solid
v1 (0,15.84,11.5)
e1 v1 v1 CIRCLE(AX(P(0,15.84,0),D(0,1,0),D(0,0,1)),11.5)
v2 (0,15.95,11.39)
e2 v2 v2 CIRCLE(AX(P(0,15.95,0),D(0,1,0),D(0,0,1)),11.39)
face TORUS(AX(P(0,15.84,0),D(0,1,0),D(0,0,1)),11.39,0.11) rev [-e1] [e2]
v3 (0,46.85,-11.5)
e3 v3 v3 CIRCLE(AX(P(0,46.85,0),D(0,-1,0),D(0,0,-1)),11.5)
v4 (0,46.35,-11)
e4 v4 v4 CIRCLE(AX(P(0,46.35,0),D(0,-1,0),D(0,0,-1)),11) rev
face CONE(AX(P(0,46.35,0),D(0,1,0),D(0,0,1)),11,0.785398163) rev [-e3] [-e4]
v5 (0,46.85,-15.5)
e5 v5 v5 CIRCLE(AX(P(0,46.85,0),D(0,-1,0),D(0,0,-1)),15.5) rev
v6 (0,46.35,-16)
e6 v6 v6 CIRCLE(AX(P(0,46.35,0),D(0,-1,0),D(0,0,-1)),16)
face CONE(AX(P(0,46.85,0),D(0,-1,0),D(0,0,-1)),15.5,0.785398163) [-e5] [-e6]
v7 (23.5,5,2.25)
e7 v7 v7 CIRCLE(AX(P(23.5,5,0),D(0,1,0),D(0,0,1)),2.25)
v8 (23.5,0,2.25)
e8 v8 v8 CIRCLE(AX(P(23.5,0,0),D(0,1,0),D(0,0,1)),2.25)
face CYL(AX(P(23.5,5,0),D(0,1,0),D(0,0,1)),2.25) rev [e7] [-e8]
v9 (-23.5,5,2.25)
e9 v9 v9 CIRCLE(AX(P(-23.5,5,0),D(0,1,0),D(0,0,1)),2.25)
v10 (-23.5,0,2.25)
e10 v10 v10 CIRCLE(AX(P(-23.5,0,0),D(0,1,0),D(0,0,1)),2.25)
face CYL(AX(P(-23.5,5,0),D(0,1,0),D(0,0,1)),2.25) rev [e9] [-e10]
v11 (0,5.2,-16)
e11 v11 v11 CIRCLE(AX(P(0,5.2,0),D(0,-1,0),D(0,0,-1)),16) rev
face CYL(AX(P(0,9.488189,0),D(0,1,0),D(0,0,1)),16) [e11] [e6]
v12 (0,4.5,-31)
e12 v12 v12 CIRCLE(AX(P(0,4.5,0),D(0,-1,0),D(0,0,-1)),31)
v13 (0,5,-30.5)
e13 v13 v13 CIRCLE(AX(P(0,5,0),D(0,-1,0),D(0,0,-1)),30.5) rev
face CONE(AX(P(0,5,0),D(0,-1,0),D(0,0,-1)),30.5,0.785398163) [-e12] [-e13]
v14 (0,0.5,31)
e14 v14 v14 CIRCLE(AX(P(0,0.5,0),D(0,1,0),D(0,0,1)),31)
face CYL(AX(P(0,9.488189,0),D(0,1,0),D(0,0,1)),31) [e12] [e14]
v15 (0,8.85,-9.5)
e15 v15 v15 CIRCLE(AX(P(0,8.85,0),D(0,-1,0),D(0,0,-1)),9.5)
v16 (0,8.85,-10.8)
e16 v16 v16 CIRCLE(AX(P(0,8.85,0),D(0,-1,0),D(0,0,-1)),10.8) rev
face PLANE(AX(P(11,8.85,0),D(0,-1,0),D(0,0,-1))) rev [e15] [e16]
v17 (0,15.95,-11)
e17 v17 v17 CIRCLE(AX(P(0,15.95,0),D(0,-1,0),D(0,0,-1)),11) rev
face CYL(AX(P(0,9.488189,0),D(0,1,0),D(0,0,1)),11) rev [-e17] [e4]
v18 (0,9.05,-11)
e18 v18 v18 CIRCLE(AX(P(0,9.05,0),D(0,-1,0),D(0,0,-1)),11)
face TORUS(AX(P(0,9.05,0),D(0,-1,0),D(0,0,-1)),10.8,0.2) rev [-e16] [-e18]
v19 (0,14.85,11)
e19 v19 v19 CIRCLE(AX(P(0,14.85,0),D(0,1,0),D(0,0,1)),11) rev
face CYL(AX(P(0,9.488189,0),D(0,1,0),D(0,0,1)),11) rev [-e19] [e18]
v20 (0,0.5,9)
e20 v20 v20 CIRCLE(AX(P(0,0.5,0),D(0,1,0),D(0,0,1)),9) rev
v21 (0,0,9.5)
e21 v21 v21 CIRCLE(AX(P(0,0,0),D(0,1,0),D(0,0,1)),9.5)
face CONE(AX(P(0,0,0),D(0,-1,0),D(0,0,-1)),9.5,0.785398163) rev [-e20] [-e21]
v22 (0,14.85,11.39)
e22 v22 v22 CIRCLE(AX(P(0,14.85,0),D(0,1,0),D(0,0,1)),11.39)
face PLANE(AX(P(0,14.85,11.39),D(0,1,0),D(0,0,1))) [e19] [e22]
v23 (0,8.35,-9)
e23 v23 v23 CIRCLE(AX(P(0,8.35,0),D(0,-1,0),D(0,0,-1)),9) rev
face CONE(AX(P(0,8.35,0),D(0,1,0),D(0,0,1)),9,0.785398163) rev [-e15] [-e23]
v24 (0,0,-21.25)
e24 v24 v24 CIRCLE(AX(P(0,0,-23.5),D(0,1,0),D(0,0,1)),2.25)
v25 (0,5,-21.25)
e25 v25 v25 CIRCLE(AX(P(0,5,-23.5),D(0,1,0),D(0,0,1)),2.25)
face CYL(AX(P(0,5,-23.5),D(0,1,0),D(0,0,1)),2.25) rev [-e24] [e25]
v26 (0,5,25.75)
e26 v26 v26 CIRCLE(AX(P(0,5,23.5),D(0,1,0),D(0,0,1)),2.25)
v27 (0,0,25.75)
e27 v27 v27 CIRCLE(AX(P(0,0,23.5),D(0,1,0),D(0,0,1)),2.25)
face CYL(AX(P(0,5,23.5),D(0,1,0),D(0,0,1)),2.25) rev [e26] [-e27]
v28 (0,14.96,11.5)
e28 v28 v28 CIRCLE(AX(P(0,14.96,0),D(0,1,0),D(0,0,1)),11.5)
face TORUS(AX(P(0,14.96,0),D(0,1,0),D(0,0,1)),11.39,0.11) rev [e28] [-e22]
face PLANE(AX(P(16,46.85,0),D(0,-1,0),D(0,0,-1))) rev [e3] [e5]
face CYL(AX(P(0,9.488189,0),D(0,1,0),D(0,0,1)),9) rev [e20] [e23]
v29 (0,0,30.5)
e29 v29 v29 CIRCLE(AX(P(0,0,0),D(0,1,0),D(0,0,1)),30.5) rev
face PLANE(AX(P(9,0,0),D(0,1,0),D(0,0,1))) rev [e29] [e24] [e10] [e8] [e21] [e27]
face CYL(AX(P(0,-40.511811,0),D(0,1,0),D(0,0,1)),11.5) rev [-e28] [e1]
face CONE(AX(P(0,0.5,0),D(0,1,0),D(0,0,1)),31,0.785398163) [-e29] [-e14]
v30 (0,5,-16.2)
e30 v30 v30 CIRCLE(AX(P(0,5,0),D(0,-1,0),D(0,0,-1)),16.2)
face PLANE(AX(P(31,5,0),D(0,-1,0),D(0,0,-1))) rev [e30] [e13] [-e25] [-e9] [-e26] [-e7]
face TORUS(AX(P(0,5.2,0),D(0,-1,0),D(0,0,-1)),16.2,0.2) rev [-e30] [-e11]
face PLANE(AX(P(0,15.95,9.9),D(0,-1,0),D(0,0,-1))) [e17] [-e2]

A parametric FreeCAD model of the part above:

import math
import FreeCAD as App
import Part
import Sketcher
Q = App.Units.Quantity


def edges_at(feature, points):
    """Names of the edges that pass closest to the given points."""
    edges = feature.Shape.Edges
    near = lambda p: min(range(len(edges)), key=lambda i: edges[i].distToShape(Part.Vertex(*p))[0])
    return sorted({f"Edge{near(p) + 1}" for p in points})

doc = App.newDocument("Part")
params = doc.addObject("Spreadsheet::Sheet", "Params")
for row, (alias, value) in enumerate([
    ("sketch1_width", "22 mm"),
    ("sketch1_width2", "15 mm"),
    ("sketch1_width3", "5 mm"),
    ("sketch1_height", "38 mm"),
    ("sketch1_height2", "41.85 mm"),
    ("revolution_angle", "360 deg"),
    ("sketch2_diameter", "4.5 mm"),
    ("hole_diameter", "4.5 mm"),
    ("hole_depth", "10 mm"),
    ("sketch3_radius", "0.11 mm"),
    ("sketch3_width", "1.1 mm"),
    ("sketch3_height", "1.49 mm"),
    ("groove_angle", "360 deg"),
    ("fillet_radius", "0.2 mm"),
    ("chamfer_size", "0.5 mm"),
], start=1):
    params.set(f"A{row}", alias)
    params.set(f"B{row}", "=" + value)
    params.setAlias(f"B{row}", alias)

body = doc.addObject("PartDesign::Body", "Body")

sketch1 = body.newObject("Sketcher::SketchObject", "Sketch")
sketch1.AttachmentSupport = (doc.getObject("XY_Plane"), [""])
sketch1.MapMode = "FlatFace"
sketch1.addGeometry([
    Part.LineSegment(App.Vector(9, 0, 0), App.Vector(31, 0, 0)),
    Part.LineSegment(App.Vector(31, 0, 0), App.Vector(31, 5, 0)),
    Part.LineSegment(App.Vector(31, 5, 0), App.Vector(16, 5, 0)),
    Part.LineSegment(App.Vector(16, 5, 0), App.Vector(16, 46.9, 0)),
    Part.LineSegment(App.Vector(16, 46.9, 0), App.Vector(11, 46.9, 0)),
    Part.LineSegment(App.Vector(11, 46.9, 0), App.Vector(11, 8.8, 0)),
    Part.LineSegment(App.Vector(11, 8.8, 0), App.Vector(9, 8.8, 0)),
    Part.LineSegment(App.Vector(9, 8.8, 0), App.Vector(9, 0, 0)),
], False)
sketch1.addConstraint([
    Sketcher.Constraint("Coincident", 0, 2, 1, 1),
    Sketcher.Constraint("Coincident", 1, 2, 2, 1),
    Sketcher.Constraint("Coincident", 2, 2, 3, 1),
    Sketcher.Constraint("Coincident", 3, 2, 4, 1),
    Sketcher.Constraint("Coincident", 4, 2, 5, 1),
    Sketcher.Constraint("Coincident", 5, 2, 6, 1),
    Sketcher.Constraint("Coincident", 6, 2, 7, 1),
    Sketcher.Constraint("Coincident", 7, 2, 0, 1),
    Sketcher.Constraint("Horizontal", 0),
    Sketcher.Constraint("Vertical", 1),
    Sketcher.Constraint("Horizontal", 2),
    Sketcher.Constraint("Vertical", 3),
    Sketcher.Constraint("Horizontal", 4),
    Sketcher.Constraint("Vertical", 5),
    Sketcher.Constraint("Horizontal", 6),
    Sketcher.Constraint("Vertical", 7),
    Sketcher.Constraint("PointOnObject", 0, 2, -1),
    Sketcher.Constraint("Equal", 4, 1),
    Sketcher.Constraint("DistanceX", 0, 1, 0, 2, Q("22 mm")),
    Sketcher.Constraint("DistanceX", 2, 2, 2, 1, Q("15 mm")),
    Sketcher.Constraint("DistanceX", 4, 2, 4, 1, Q("5 mm")),
    Sketcher.Constraint("DistanceY", 5, 2, 5, 1, Q("38 mm")),
    Sketcher.Constraint("DistanceX", -1, 1, 0, 2, Q("31 mm")),
    Sketcher.Constraint("DistanceY", 3, 1, 3, 2, Q("41.85 mm")),
])
sketch1.setExpression("Constraints[18]", "Params.sketch1_width")
sketch1.setExpression("Constraints[19]", "Params.sketch1_width2")
sketch1.setExpression("Constraints[20]", "Params.sketch1_width3")
sketch1.setExpression("Constraints[21]", "Params.sketch1_height")
sketch1.setExpression("Constraints[23]", "Params.sketch1_height2")
revolution = body.newObject("PartDesign::Revolution", "Revolution")
revolution.Profile = sketch1
revolution.ReferenceAxis = (sketch1, ["V_Axis"])
revolution.setExpression("Angle", "Params.revolution_angle")

sketch2 = body.newObject("Sketcher::SketchObject", "Sketch001")
sketch2.AttachmentSupport = (doc.getObject("XZ_Plane"), [""])
sketch2.MapMode = "FlatFace"
sketch2.AttachmentOffset = App.Placement(App.Vector(0, 0, -5), App.Rotation())
sketch2.addGeometry([
    Part.Circle(App.Vector(23.5, 0, 0), App.Vector(0, 0, 1), 2.2),
    Part.Circle(App.Vector(0, -23.5, 0), App.Vector(0, 0, 1), 2.2),
    Part.Circle(App.Vector(0, 23.5, 0), App.Vector(0, 0, 1), 2.2),
    Part.Circle(App.Vector(-23.5, 0, 0), App.Vector(0, 0, 1), 2.2),
], False)
sketch2.addConstraint([
    Sketcher.Constraint("Equal", 0, 1),
    Sketcher.Constraint("Equal", 1, 2),
    Sketcher.Constraint("Equal", 2, 3),
    Sketcher.Constraint("Symmetric", 1, 3, 2, 3, -1, 1),
    Sketcher.Constraint("Symmetric", 0, 3, 3, 3, -1, 1),
    Sketcher.Constraint("PointOnObject", 0, 3, -1),
    Sketcher.Constraint("PointOnObject", 1, 3, -2),
    Sketcher.Constraint("Diameter", 0, Q("4.5 mm")),
    Sketcher.Constraint("DistanceY", 1, 3, 2, 3, Q("47 mm")),
    Sketcher.Constraint("DistanceX", 3, 3, 0, 3, Q("47 mm")),
])
sketch2.setExpression("Constraints[7]", "Params.sketch2_diameter")
doc.recompute()
hole = body.newObject("PartDesign::Hole", "Hole")
hole.Profile = sketch2
hole.ThreadType = "None"
hole.setExpression("Diameter", "Params.hole_diameter")
hole.DepthType = "Dimension"
hole.setExpression("Depth", "Params.hole_depth")
hole.DrillPoint = "Angled"
hole.DrillPointAngle = 118
hole.Reversed = True

sketch3 = body.newObject("Sketcher::SketchObject", "Sketch002")
sketch3.AttachmentSupport = (doc.getObject("YZ_Plane"), [""])
sketch3.MapMode = "FlatFace"
sketch3.addGeometry([
    Part.LineSegment(App.Vector(14.85, 9.9, 0), App.Vector(14.85, 11.39, 0)),
    Part.ArcOfCircle(Part.Circle(App.Vector(14.96, 11.39, 0), App.Vector(0, 0, 1), 0.11), math.radians(90), math.radians(180)),
    Part.LineSegment(App.Vector(14.96, 11.5, 0), App.Vector(15.84, 11.5, 0)),
    Part.ArcOfCircle(Part.Circle(App.Vector(15.84, 11.39, 0), App.Vector(0, 0, 1), 0.11), math.radians(0), math.radians(90)),
    Part.LineSegment(App.Vector(15.95, 11.39, 0), App.Vector(15.95, 9.9, 0)),
    Part.LineSegment(App.Vector(15.95, 9.9, 0), App.Vector(14.85, 9.9, 0)),
], False)
sketch3.addConstraint([
    Sketcher.Constraint("Tangent", 0, 2, 1, 2),
    Sketcher.Constraint("Tangent", 1, 1, 2, 1),
    Sketcher.Constraint("Tangent", 2, 2, 3, 2),
    Sketcher.Constraint("Tangent", 3, 1, 4, 1),
    Sketcher.Constraint("Coincident", 4, 2, 5, 1),
    Sketcher.Constraint("Coincident", 5, 2, 0, 1),
    Sketcher.Constraint("Vertical", 0),
    Sketcher.Constraint("Horizontal", 2),
    Sketcher.Constraint("Vertical", 4),
    Sketcher.Constraint("Horizontal", 5),
    Sketcher.Constraint("Equal", 1, 3),
    Sketcher.Constraint("Radius", 1, Q("0.11 mm")),
    Sketcher.Constraint("DistanceX", 5, 2, 5, 1, Q("1.1 mm")),
    Sketcher.Constraint("DistanceY", 0, 1, 0, 2, Q("1.49 mm")),
    Sketcher.Constraint("DistanceY", -1, 1, 1, 1, Q("11.5 mm")),
    Sketcher.Constraint("DistanceX", -1, 1, 1, 3, Q("14.96 mm")),
])
sketch3.setExpression("Constraints[11]", "Params.sketch3_radius")
sketch3.setExpression("Constraints[12]", "Params.sketch3_width")
sketch3.setExpression("Constraints[13]", "Params.sketch3_height")
groove = body.newObject("PartDesign::Groove", "Groove")
groove.Profile = sketch3
groove.ReferenceAxis = (sketch3, ["H_Axis"])
groove.setExpression("Angle", "Params.groove_angle")
doc.recompute()

fillet = body.newObject("PartDesign::Fillet", "Fillet")
fillet.Base = (groove, edges_at(groove, [(0, 8.85, -11), (0, 5, -16)]))
fillet.setExpression("Radius", "Params.fillet_radius")
doc.recompute()

chamfer = body.newObject("PartDesign::Chamfer", "Chamfer")
chamfer.Base = (fillet, edges_at(fillet, [
    (0, 0, -9),
    (0, 8.85, -9),
    (0, 46.85, -11),
    (0, 46.85, -16),
    (0, 5, -31),
    (0, 0, -31),
]))
chamfer.setExpression("Size", "Params.chamfer_size")

doc.recompute()
